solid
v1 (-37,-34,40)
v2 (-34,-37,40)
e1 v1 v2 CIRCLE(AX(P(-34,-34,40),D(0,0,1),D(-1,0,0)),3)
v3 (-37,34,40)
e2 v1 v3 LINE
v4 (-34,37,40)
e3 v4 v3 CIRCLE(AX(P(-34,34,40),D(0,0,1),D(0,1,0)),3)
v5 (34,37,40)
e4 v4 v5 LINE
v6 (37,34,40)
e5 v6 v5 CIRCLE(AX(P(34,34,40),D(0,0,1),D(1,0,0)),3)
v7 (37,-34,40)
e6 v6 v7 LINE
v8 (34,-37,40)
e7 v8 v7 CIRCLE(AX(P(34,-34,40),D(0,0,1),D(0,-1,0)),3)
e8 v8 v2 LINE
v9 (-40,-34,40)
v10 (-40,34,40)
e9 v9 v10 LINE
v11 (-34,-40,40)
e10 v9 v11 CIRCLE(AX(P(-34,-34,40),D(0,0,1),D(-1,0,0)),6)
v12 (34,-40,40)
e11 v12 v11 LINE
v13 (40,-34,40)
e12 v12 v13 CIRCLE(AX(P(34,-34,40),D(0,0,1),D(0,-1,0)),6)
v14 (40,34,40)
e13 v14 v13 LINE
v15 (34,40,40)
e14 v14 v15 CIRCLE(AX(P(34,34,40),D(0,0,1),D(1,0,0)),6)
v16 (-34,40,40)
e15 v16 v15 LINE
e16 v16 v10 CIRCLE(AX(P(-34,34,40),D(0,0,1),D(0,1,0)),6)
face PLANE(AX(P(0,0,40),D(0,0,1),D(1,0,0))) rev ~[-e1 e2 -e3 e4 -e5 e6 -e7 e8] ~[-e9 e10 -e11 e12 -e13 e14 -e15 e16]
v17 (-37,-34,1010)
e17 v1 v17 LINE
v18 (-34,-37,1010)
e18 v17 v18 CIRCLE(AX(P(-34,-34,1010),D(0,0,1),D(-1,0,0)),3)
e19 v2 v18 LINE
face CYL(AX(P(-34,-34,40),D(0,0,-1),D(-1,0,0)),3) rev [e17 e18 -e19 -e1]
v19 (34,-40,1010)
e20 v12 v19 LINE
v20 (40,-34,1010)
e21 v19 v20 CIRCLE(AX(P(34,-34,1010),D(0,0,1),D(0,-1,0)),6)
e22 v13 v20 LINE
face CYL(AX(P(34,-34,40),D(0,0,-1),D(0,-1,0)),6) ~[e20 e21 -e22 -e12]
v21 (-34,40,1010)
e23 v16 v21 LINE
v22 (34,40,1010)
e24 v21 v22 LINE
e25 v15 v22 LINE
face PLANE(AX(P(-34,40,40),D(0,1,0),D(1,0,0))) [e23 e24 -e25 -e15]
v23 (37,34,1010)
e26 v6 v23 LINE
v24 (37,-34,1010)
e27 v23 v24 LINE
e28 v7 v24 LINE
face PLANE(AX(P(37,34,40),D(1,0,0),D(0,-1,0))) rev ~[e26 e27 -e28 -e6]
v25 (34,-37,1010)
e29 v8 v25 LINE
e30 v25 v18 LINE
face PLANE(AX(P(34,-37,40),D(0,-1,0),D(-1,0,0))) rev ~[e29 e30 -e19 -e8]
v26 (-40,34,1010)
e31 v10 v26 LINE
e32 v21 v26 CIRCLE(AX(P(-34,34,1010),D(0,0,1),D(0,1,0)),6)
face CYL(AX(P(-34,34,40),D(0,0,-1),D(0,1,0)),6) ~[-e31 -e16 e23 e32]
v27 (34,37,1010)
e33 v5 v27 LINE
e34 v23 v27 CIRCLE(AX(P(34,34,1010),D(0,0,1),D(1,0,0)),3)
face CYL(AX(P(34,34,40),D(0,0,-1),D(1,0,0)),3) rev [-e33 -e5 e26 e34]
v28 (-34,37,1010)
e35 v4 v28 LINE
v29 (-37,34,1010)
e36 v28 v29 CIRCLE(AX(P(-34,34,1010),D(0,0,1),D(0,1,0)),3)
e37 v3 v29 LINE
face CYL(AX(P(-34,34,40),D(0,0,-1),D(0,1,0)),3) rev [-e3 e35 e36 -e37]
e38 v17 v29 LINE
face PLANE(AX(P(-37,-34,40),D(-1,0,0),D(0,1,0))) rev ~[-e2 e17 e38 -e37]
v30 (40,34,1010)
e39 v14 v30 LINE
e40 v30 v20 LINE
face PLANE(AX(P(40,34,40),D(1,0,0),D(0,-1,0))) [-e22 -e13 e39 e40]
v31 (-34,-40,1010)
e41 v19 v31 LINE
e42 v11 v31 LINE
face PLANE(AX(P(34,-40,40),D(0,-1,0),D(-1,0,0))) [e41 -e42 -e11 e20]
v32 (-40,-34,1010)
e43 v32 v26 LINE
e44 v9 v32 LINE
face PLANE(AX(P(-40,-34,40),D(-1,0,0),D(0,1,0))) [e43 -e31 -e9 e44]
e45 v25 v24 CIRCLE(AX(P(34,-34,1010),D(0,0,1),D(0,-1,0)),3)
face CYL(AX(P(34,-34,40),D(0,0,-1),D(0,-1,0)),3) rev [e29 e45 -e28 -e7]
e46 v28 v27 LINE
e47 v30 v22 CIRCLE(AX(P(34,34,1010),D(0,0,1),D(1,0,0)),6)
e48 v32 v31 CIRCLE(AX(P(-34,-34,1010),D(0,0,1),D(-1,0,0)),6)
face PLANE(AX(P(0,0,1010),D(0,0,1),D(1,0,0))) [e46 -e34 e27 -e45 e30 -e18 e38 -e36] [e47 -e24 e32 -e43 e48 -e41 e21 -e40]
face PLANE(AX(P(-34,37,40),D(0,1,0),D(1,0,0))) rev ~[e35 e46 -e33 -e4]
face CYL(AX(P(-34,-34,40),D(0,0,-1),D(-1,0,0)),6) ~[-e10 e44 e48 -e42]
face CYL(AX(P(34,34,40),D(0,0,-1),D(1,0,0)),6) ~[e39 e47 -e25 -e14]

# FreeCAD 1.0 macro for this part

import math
import FreeCAD as App
import Part
import Sketcher

V = App.Vector
Q = App.Units.Quantity

doc = App.newDocument("Part")
body = doc.addObject("PartDesign::Body", "Body")

sketch1 = body.newObject("Sketcher::SketchObject", "Sketch")
sketch1.AttachmentSupport = (doc.getObject("XY_Plane"), [""])
sketch1.MapMode = "FlatFace"
sketch1.AttachmentOffset = App.Placement(V(0, 0, 40), App.Rotation())
sketch1.addGeometry([
    Part.LineSegment(V(-40, 34, 0), V(-40, -34, 0)),
    Part.ArcOfCircle(Part.Circle(V(-34, -34, 0), V(0, 0, 1), 6), math.radians(180), math.radians(270)),
    Part.LineSegment(V(-34, -40, 0), V(34, -40, 0)),
    Part.ArcOfCircle(Part.Circle(V(34, -34, 0), V(0, 0, 1), 6), math.radians(-90), math.radians(0)),
    Part.LineSegment(V(40, -34, 0), V(40, 34, 0)),
    Part.ArcOfCircle(Part.Circle(V(34, 34, 0), V(0, 0, 1), 6), math.radians(0), math.radians(90)),
    Part.LineSegment(V(34, 40, 0), V(-34, 40, 0)),
    Part.ArcOfCircle(Part.Circle(V(-34, 34, 0), V(0, 0, 1), 6), math.radians(90), math.radians(180)),
    Part.ArcOfCircle(Part.Circle(V(-34, 34, 0), V(0, 0, 1), 3), math.radians(90), math.radians(180)),
    Part.LineSegment(V(-34, 37, 0), V(34, 37, 0)),
    Part.ArcOfCircle(Part.Circle(V(34, 34, 0), V(0, 0, 1), 3), math.radians(0), math.radians(90)),
    Part.LineSegment(V(37, 34, 0), V(37, -34, 0)),
    Part.ArcOfCircle(Part.Circle(V(34, -34, 0), V(0, 0, 1), 3), math.radians(-90), math.radians(0)),
    Part.LineSegment(V(34, -37, 0), V(-34, -37, 0)),
    Part.ArcOfCircle(Part.Circle(V(-34, -34, 0), V(0, 0, 1), 3), math.radians(180), math.radians(270)),
    Part.LineSegment(V(-37, -34, 0), V(-37, 34, 0)),
], False)
sketch1.addConstraint([
    Sketcher.Constraint("Tangent", 0, 2, 1, 1),
    Sketcher.Constraint("Tangent", 1, 2, 2, 1),
    Sketcher.Constraint("Tangent", 2, 2, 3, 1),
    Sketcher.Constraint("Tangent", 3, 2, 4, 1),
    Sketcher.Constraint("Tangent", 4, 2, 5, 1),
    Sketcher.Constraint("Tangent", 5, 2, 6, 1),
    Sketcher.Constraint("Tangent", 6, 2, 7, 1),
    Sketcher.Constraint("Tangent", 7, 2, 0, 1),
    Sketcher.Constraint("Tangent", 8, 1, 9, 1),
    Sketcher.Constraint("Tangent", 9, 2, 10, 2),
    Sketcher.Constraint("Tangent", 10, 1, 11, 1),
    Sketcher.Constraint("Tangent", 11, 2, 12, 2),
    Sketcher.Constraint("Tangent", 12, 1, 13, 1),
    Sketcher.Constraint("Tangent", 13, 2, 14, 2),
    Sketcher.Constraint("Tangent", 14, 1, 15, 1),
    Sketcher.Constraint("Tangent", 15, 2, 8, 2),
    Sketcher.Constraint("Vertical", 0),
    Sketcher.Constraint("Horizontal", 2),
    Sketcher.Constraint("Vertical", 4),
    Sketcher.Constraint("Horizontal", 6),
    Sketcher.Constraint("Horizontal", 9),
    Sketcher.Constraint("Vertical", 11),
    Sketcher.Constraint("Horizontal", 13),
    Sketcher.Constraint("Vertical", 15),
    Sketcher.Constraint("Coincident", 8, 3, 7, 3),
    Sketcher.Constraint("Coincident", 10, 3, 5, 3),
    Sketcher.Constraint("Coincident", 12, 3, 3, 3),
    Sketcher.Constraint("Equal", 1, 3),
    Sketcher.Constraint("Equal", 3, 5),
    Sketcher.Constraint("Equal", 5, 7),
    Sketcher.Constraint("Equal", 12, 14),
    Sketcher.Constraint("Symmetric", 1, 3, 5, 3, -1, 1),
    Sketcher.Constraint("Equal", 13, 0),
    Sketcher.Constraint("Radius", 1, Q("6 mm")),
    Sketcher.Constraint("Radius", 8, Q("3 mm")),
    Sketcher.Constraint("DistanceX", 0, 2, -1, 1, Q("40 mm")),
])
pad1 = body.newObject("PartDesign::Pad", "Pad")
pad1.Profile = sketch1
pad1.Length = 970

doc.recompute()
